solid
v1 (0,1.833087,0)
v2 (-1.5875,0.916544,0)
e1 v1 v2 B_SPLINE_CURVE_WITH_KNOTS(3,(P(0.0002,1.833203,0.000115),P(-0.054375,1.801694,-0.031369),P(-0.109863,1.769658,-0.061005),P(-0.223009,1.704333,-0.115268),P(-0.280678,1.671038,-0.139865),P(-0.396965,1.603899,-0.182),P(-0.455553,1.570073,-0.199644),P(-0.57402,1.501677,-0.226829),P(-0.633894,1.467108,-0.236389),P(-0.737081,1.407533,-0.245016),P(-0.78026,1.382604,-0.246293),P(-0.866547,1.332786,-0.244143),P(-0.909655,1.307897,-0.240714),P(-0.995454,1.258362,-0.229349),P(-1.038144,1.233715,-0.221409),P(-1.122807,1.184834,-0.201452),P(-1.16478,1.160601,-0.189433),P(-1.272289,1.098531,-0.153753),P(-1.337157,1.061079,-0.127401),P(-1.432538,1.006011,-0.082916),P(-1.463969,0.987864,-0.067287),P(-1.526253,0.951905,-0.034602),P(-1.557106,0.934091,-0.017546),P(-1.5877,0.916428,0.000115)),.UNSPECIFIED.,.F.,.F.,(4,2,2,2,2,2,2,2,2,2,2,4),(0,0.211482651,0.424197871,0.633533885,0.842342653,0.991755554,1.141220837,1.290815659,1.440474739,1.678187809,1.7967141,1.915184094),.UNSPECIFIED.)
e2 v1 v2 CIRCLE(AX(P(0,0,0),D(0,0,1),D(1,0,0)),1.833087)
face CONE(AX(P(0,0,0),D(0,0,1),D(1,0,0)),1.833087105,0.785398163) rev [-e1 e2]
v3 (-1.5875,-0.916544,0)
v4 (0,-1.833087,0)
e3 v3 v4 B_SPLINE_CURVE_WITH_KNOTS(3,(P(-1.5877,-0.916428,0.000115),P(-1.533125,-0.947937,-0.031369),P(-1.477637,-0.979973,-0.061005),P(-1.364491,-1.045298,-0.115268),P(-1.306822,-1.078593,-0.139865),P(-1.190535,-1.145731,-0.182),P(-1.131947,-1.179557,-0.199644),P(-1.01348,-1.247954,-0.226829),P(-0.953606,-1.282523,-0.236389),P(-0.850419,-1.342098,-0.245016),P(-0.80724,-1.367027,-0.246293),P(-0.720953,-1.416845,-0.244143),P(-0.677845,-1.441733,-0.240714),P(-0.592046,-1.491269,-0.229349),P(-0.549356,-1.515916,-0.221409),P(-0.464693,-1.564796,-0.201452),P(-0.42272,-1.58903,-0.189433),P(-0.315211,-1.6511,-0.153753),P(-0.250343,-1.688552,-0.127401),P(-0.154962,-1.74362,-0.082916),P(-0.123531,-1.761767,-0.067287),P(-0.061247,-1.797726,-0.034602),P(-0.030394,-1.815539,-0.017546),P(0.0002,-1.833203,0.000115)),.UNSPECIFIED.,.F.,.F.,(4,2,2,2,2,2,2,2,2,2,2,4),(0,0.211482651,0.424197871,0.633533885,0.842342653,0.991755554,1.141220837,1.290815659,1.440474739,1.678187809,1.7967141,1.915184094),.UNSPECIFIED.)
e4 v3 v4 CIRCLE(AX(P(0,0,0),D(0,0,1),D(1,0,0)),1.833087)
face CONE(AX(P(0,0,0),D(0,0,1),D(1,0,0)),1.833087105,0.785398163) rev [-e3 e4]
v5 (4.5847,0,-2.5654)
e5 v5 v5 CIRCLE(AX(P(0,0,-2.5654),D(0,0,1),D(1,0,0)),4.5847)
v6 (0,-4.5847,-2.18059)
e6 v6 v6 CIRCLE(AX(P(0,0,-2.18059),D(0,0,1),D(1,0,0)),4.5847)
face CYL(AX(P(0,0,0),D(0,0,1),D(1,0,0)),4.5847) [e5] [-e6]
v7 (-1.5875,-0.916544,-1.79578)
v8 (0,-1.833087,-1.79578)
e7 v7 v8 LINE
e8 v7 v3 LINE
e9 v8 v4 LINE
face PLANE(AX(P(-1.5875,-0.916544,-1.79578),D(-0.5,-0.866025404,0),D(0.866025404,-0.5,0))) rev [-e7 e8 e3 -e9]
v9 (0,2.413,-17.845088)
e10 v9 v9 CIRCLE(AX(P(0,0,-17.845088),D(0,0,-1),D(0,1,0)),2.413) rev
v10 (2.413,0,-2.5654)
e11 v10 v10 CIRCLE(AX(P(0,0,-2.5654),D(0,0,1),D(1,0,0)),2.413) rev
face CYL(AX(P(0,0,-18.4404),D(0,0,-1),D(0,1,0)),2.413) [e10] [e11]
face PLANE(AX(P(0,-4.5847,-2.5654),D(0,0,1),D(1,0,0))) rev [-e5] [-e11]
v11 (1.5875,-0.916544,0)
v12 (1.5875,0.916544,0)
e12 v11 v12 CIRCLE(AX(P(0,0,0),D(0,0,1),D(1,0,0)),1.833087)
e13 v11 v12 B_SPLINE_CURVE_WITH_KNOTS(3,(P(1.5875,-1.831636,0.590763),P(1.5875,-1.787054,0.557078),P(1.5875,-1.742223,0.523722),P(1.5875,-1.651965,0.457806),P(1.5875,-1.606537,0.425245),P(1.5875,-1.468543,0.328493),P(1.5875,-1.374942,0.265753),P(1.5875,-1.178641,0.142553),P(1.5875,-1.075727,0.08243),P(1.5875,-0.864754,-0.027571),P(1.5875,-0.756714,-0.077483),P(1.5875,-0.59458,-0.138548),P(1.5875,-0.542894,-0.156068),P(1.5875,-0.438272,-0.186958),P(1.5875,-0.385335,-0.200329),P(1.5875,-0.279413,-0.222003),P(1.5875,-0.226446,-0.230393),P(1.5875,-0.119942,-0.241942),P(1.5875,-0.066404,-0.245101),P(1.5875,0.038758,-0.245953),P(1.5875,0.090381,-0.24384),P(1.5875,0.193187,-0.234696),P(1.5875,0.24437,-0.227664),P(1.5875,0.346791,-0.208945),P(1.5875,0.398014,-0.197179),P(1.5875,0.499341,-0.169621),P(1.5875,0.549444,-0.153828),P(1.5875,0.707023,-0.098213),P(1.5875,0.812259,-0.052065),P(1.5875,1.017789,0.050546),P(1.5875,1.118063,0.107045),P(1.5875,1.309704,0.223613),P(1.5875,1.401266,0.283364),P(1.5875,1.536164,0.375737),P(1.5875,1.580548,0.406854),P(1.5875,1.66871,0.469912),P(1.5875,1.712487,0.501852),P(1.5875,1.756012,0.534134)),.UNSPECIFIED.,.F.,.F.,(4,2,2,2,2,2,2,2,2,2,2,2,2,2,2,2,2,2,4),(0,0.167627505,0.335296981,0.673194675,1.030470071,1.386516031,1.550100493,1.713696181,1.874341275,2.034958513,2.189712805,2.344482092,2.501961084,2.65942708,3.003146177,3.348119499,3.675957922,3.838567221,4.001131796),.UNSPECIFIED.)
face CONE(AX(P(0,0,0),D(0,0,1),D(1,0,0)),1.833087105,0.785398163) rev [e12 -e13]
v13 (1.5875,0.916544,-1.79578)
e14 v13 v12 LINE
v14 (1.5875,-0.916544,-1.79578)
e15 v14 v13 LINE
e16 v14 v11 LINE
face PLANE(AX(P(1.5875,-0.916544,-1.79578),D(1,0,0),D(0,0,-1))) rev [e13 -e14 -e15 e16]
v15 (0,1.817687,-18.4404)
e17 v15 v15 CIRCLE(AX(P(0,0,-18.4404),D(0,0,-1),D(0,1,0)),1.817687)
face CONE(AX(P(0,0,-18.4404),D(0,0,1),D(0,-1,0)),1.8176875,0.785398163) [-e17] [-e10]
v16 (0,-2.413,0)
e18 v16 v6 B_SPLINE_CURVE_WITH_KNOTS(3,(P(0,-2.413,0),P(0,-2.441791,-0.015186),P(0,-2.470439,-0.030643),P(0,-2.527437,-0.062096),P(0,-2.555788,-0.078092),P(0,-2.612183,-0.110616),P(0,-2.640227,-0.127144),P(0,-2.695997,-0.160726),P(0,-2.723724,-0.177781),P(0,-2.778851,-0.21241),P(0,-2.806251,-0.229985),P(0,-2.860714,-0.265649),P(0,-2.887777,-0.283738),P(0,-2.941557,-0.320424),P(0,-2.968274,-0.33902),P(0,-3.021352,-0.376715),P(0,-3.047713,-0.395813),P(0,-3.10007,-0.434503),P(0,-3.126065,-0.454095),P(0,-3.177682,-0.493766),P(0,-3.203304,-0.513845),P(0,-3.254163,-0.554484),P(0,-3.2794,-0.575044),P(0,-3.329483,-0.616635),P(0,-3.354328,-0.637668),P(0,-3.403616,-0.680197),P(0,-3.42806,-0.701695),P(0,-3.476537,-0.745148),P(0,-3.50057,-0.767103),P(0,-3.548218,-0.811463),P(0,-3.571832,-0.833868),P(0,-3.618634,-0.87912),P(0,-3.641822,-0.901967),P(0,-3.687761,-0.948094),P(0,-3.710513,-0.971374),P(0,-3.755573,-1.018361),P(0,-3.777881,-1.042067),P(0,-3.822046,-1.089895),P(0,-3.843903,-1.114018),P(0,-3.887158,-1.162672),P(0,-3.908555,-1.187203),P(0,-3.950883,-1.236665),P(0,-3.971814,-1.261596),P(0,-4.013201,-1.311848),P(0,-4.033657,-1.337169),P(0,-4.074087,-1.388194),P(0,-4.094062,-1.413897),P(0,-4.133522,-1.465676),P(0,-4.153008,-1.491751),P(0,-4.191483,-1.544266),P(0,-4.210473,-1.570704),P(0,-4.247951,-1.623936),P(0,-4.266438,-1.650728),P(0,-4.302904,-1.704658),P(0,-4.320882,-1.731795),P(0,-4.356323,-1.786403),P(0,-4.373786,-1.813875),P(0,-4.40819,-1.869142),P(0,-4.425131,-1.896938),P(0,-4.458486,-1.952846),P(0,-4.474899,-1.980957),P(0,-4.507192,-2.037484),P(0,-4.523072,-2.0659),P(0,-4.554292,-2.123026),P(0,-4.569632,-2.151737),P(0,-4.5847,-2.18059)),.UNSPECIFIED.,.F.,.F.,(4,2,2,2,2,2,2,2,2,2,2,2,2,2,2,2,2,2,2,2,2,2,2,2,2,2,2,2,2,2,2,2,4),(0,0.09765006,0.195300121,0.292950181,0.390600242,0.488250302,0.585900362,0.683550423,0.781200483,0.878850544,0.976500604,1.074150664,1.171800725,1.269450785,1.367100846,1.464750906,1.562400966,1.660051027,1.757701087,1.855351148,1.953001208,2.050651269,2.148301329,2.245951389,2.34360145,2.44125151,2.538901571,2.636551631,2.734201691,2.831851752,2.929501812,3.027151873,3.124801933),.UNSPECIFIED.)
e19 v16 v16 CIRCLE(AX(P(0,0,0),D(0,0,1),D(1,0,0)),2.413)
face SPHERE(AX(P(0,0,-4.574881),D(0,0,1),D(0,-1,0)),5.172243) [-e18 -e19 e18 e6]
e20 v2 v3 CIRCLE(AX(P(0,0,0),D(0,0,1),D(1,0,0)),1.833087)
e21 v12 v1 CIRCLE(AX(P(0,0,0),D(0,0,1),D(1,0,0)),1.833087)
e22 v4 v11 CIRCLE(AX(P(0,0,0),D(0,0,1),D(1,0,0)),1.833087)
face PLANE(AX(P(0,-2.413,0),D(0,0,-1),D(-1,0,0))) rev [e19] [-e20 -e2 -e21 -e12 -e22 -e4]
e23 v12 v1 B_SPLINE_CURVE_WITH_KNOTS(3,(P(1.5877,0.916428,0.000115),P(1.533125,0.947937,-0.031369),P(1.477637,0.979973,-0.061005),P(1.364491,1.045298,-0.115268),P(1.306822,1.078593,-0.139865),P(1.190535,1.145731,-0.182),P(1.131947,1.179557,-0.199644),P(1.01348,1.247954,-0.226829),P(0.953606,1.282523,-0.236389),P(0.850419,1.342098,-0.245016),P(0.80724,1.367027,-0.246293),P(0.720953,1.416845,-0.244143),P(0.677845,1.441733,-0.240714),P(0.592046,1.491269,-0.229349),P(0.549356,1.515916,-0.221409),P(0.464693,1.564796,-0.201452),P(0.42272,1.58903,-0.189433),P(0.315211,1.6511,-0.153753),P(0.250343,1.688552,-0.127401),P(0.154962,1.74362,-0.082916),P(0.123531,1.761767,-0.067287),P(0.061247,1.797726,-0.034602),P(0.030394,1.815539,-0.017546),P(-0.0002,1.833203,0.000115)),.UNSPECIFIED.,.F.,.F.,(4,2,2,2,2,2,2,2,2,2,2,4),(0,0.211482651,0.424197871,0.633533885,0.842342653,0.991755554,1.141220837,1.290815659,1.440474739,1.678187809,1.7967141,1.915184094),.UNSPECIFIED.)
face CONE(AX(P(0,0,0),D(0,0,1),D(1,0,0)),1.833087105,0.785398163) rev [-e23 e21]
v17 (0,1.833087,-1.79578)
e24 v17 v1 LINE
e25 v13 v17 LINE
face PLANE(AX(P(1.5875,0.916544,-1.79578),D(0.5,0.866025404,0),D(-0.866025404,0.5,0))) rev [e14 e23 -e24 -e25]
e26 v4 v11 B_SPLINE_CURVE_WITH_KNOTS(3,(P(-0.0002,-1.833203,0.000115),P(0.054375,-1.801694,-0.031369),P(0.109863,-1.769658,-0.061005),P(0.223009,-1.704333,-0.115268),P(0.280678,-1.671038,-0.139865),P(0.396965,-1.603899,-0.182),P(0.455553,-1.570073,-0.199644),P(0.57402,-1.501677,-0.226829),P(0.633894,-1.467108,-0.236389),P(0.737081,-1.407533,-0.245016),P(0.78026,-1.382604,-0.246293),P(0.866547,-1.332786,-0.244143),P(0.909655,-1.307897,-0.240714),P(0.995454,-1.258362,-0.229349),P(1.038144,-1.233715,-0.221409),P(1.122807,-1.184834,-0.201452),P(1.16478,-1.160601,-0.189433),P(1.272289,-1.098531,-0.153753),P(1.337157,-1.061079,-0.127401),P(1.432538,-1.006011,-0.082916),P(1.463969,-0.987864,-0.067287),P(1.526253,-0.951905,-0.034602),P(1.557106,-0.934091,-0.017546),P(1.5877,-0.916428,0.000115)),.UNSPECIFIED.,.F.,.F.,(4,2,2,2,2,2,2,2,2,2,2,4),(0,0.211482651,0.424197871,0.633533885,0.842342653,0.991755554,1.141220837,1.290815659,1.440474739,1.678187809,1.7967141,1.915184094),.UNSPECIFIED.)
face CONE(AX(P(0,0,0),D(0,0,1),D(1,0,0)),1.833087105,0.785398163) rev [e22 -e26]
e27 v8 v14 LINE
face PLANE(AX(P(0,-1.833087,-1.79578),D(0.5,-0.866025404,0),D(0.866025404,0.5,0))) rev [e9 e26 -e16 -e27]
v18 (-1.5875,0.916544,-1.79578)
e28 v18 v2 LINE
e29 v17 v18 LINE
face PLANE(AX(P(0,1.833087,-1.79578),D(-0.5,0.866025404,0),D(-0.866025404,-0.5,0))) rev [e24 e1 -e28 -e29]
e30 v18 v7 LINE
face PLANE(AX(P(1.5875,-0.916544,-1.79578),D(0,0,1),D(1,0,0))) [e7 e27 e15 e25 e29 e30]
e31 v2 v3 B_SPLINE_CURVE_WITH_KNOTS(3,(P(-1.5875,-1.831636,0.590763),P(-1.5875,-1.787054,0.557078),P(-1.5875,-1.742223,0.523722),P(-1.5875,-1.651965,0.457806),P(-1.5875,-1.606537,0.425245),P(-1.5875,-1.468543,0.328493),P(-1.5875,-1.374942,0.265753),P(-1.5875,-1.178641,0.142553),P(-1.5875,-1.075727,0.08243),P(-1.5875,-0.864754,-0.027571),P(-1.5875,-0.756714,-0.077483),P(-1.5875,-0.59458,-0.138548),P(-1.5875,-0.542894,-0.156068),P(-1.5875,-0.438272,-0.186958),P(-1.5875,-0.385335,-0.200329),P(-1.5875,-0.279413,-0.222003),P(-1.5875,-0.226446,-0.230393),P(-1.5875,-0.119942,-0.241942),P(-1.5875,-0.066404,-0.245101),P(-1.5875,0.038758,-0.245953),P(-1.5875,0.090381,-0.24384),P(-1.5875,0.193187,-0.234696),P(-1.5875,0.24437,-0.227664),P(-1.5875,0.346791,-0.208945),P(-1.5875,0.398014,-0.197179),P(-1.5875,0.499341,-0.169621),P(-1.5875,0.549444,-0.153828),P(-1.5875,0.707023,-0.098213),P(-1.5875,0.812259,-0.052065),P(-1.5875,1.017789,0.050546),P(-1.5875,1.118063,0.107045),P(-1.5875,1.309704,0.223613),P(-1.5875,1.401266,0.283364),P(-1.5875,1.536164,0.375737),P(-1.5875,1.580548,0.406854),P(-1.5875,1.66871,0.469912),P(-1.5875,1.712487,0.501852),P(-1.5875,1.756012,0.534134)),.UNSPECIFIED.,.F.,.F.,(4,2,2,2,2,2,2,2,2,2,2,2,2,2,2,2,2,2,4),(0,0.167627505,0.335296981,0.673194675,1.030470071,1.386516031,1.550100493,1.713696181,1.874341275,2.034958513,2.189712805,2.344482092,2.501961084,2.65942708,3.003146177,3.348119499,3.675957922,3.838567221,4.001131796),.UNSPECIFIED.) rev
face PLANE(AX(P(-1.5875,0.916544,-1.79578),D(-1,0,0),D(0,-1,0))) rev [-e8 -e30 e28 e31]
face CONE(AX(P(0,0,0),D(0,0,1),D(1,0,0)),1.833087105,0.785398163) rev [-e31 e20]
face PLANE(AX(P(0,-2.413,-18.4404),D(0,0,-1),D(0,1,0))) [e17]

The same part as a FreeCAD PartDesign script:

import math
import FreeCAD as App
import Part
import Sketcher
from FreeCAD import Vector
Q = App.Units.Quantity


def edges_at(feature, points):
    """Names of the edges that pass closest to the given points."""
    edges = feature.Shape.Edges
    near = lambda p: min(range(len(edges)), key=lambda i: edges[i].distToShape(Part.Vertex(*p))[0])
    return sorted({f"Edge{near(p) + 1}" for p in points})

doc = App.newDocument("Part")
params = doc.addObject("Spreadsheet::Sheet", "Params")
for row, (alias, value) in enumerate([
    ("sketch1_width", "0.095 in"),
    ("sketch1_height", "0.625 in"),
    ("revolution_angle", "360 deg"),
    ("chamfer_size", "0.595313 mm"),
    ("sketch2_width", "0.095 in"),
    ("sketch2_height", "0.101 in"),
    ("revolution2_angle", "360 deg"),
    ("pocket1_length", "0.0707 in"),
    ("pocket2_length", "0.0707 in"),
    ("pocket2_taper", "-45 deg"),
], start=1):
    params.set(f"A{row}", alias)
    params.set(f"B{row}", "=" + value)
    params.setAlias(f"B{row}", alias)

body = doc.addObject("PartDesign::Body", "Body")

# Sketch on YZ plane
sketch1 = body.newObject("Sketcher::SketchObject", "Sketch")
sketch1.AttachmentSupport = (doc.getObject("YZ_Plane"), [""])
sketch1.MapMode = "FlatFace"
sketch1.addGeometry([
    Part.LineSegment(Vector(2.413, -2.5654, 0), Vector(0, -2.5654, 0)),
    Part.LineSegment(Vector(0, -2.5654, 0), Vector(0, -18.4404, 0)),
    Part.LineSegment(Vector(0, -18.4404, 0), Vector(2.413, -18.4404, 0)),
    Part.LineSegment(Vector(2.413, -18.4404, 0), Vector(2.413, -2.5654, 0)),
], False)
sketch1.addConstraint([
    Sketcher.Constraint("Coincident", 0, 2, 1, 1),
    Sketcher.Constraint("Coincident", 1, 2, 2, 1),
    Sketcher.Constraint("Coincident", 2, 2, 3, 1),
    Sketcher.Constraint("Coincident", 3, 2, 0, 1),
    Sketcher.Constraint("Horizontal", 0),
    Sketcher.Constraint("Vertical", 1),
    Sketcher.Constraint("Horizontal", 2),
    Sketcher.Constraint("Vertical", 3),
    Sketcher.Constraint("PointOnObject", 0, 2, -2),
    Sketcher.Constraint("DistanceX", 0, 2, 0, 1, Q("0.095 in")),
    Sketcher.Constraint("DistanceY", 1, 2, 1, 1, Q("0.625 in")),
    Sketcher.Constraint("DistanceY", 0, 2, -1, 1, Q("0.101 in")),
])
sketch1.setExpression("Constraints[9]", "Params.sketch1_width")
sketch1.setExpression("Constraints[10]", "Params.sketch1_height")
revolution = body.newObject("PartDesign::Revolution", "Revolution")
revolution.Profile = sketch1
revolution.ReferenceAxis = (sketch1, ["V_Axis"])
revolution.setExpression("Angle", "Params.revolution_angle")
doc.recompute()

chamfer = body.newObject("PartDesign::Chamfer", "Chamfer")
chamfer.Base = (revolution, edges_at(revolution, [(0, -2.413, -18.44)]))
chamfer.setExpression("Size", "Params.chamfer_size")

# Sketch on YZ plane
sketch2 = body.newObject("Sketcher::SketchObject", "Sketch001")
sketch2.AttachmentSupport = (doc.getObject("YZ_Plane"), [""])
sketch2.MapMode = "FlatFace"
sketch2.addGeometry([
    Part.LineSegment(Vector(4.5847, -2.5654, 0), Vector(4.5847, -2.18059, 0)),  # 0
    Part.ArcOfCircle(Part.Circle(Vector(0, -4.574881, 0), Vector(0, 0, 1), 5.172243), math.radians(27.575137), math.radians(62.190798)),  # 1
    Part.LineSegment(Vector(2.413, 0, 0), Vector(0, 0, 0)),  # 2
    Part.LineSegment(Vector(0, 0, 0), Vector(0, -2.5654, 0)),  # 3
    Part.LineSegment(Vector(0, -2.5654, 0), Vector(4.5847, -2.5654, 0)),  # 4
], False)
sketch2.addConstraint([
    Sketcher.Constraint("Coincident", 0, 2, 1, 1),
    Sketcher.Constraint("Coincident", 1, 2, 2, 1),
    Sketcher.Constraint("Coincident", 2, 2, 3, 1),
    Sketcher.Constraint("Coincident", 3, 2, 4, 1),
    Sketcher.Constraint("Coincident", 4, 2, 0, 1),
    Sketcher.Constraint("Vertical", 0),
    Sketcher.Constraint("Horizontal", 2),
    Sketcher.Constraint("Vertical", 3),
    Sketcher.Constraint("Horizontal", 4),
    Sketcher.Constraint("Coincident", 2, 2, -1, 1),
    Sketcher.Constraint("PointOnObject", 1, 3, -2),
    Sketcher.Constraint("DistanceX", 2, 2, 2, 1, Q("0.095 in")),
    Sketcher.Constraint("DistanceY", 3, 2, 3, 1, Q("0.101 in")),
    Sketcher.Constraint("DistanceX", 4, 1, 4, 2, Q("0.1805 in")),
    Sketcher.Constraint("Radius", 1, Q("5.172243 mm")),
])
sketch2.setExpression("Constraints[11]", "Params.sketch2_width")
sketch2.setExpression("Constraints[12]", "Params.sketch2_height")
revolution2 = body.newObject("PartDesign::Revolution", "Revolution001")
revolution2.Profile = sketch2
revolution2.ReferenceAxis = (sketch2, ["V_Axis"])
revolution2.setExpression("Angle", "Params.revolution2_angle")

# Sketch on XY plane
sketch3 = body.newObject("Sketcher::SketchObject", "Sketch002")
sketch3.AttachmentSupport = (doc.getObject("XY_Plane"), [""])
sketch3.MapMode = "FlatFace"
sketch3.addGeometry([
    Part.LineSegment(Vector(1.5875, -0.916544, 0), Vector(1.5875, 0.916544, 0)),  # 0
    Part.LineSegment(Vector(1.5875, 0.916544, 0), Vector(0, 1.833087, 0)),  # 1
    Part.LineSegment(Vector(0, 1.833087, 0), Vector(-1.5875, 0.916544, 0)),  # 2
    Part.LineSegment(Vector(-1.5875, 0.916544, 0), Vector(-1.5875, -0.916544, 0)),  # 3
    Part.LineSegment(Vector(-1.5875, -0.916544, 0), Vector(0, -1.833087, 0)),  # 4
    Part.LineSegment(Vector(0, -1.833087, 0), Vector(1.5875, -0.916544, 0)),  # 5
], False)
sketch3.addConstraint([
    Sketcher.Constraint("Coincident", 0, 2, 1, 1),
    Sketcher.Constraint("Coincident", 1, 2, 2, 1),
    Sketcher.Constraint("Coincident", 2, 2, 3, 1),
    Sketcher.Constraint("Coincident", 3, 2, 4, 1),
    Sketcher.Constraint("Coincident", 4, 2, 5, 1),
    Sketcher.Constraint("Coincident", 5, 2, 0, 1),
    Sketcher.Constraint("Vertical", 0),
    Sketcher.Constraint("Vertical", 3),
    Sketcher.Constraint("Symmetric", 0, 2, 3, 2, -1, 1),
    Sketcher.Constraint("Symmetric", 1, 2, 4, 2, -1, 1),
    Sketcher.Constraint("PointOnObject", 1, 2, -2),
    Sketcher.Constraint("Parallel", 2, 5),
    Sketcher.Constraint("Horizontal", 0, 2, 2, 2),
    Sketcher.Constraint("Angle", 1, Q("150 deg")),
    Sketcher.Constraint("DistanceX", -1, 1, 0, 2, Q("0.0625 in")),
    Sketcher.Constraint("DistanceY", 0, 1, 0, 2, Q("1.833087 mm")),
])
pocket1 = body.newObject("PartDesign::Pocket", "Pocket")
pocket1.Profile = sketch3
pocket1.setExpression("Length", "Params.pocket1_length")

# Sketch on XY plane
sketch4 = body.newObject("Sketcher::SketchObject", "Sketch003")
sketch4.AttachmentSupport = (doc.getObject("XY_Plane"), [""])
sketch4.MapMode = "FlatFace"
sketch4.addGeometry(Part.Circle(Vector(0, 0, 0), Vector(0, 0, 1), 1.833087), False)
sketch4.addConstraint([
    Sketcher.Constraint("Coincident", 0, 3, -1, 1),
    Sketcher.Constraint("Diameter", 0, Q("3.666174 mm")),
])
pocket2 = body.newObject("PartDesign::Pocket", "Pocket001")
pocket2.Profile = sketch4
pocket2.setExpression("Length", "Params.pocket2_length")
pocket2.setExpression("TaperAngle", "Params.pocket2_taper")

doc.recompute()
